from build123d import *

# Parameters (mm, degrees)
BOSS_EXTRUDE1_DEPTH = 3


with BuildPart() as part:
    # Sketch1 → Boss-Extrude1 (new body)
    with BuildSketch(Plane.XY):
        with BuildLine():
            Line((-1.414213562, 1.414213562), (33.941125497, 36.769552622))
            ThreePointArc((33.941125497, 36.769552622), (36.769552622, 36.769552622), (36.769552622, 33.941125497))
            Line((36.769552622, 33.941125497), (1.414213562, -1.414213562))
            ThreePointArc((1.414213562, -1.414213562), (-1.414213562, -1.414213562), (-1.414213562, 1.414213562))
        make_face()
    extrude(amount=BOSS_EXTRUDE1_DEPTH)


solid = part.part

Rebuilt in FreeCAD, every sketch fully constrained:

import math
import FreeCAD as App
import Part
import Sketcher

V = App.Vector
Q = App.Units.Quantity

doc = App.newDocument("Part")
params = doc.addObject("Spreadsheet::Sheet", "Params")
for row, (alias, value) in enumerate([
    ("sketch1_radius", "2 mm"),
    ("sketch1_length", "50 mm"),
    ("pad1_length", "3 mm"),
], start=1):
    params.set(f"A{row}", alias)
    params.set(f"B{row}", "=" + value)
    params.setAlias(f"B{row}", alias)

body = doc.addObject("PartDesign::Body", "Body")

sketch1 = doc.addObject("Sketcher::SketchObject", "Sketch")
body.addObject(sketch1)
sketch1.AttachmentSupport = (doc.XY_Plane, [""])
sketch1.MapMode = "FlatFace"
sketch1.addGeometry(Part.LineSegment(V(33.9, 36.8, 0), V(-1.4, 1.4, 0)), False)
sketch1.addGeometry(Part.ArcOfCircle(Part.Circle(V(0, 0, 0), V(0, 0, 1), 2), math.radians(135), math.radians(315)), False)
sketch1.addGeometry(Part.LineSegment(V(1.4, -1.4, 0), V(36.8, 33.9, 0)), False)
sketch1.addGeometry(Part.ArcOfCircle(Part.Circle(V(35.4, 35.4, 0), V(0, 0, 1), 2), math.radians(-45), math.radians(135)), False)
sketch1.addConstraint(Sketcher.Constraint("Tangent", 0, 2, 1, 1))
sketch1.addConstraint(Sketcher.Constraint("Tangent", 1, 2, 2, 1))
sketch1.addConstraint(Sketcher.Constraint("Tangent", 2, 2, 3, 1))
sketch1.addConstraint(Sketcher.Constraint("Tangent", 3, 2, 0, 1))
sketch1.addConstraint(Sketcher.Constraint("Coincident", 1, 3, -1, 1))
sketch1.addConstraint(Sketcher.Constraint("Equal", 1, 3))
sketch1.addConstraint(Sketcher.Constraint("Radius", 1, 2.0))
sketch1.addConstraint(Sketcher.Constraint("Angle", 0, Q("-135 deg")))
sketch1.addConstraint(Sketcher.Constraint("Distance", 0, 50.0))
sketch1.setExpression("Constraints[6]", "Params.sketch1_radius")
sketch1.setExpression("Constraints[8]", "Params.sketch1_length")
pad1 = doc.addObject("PartDesign::Pad", "Pad")
body.addObject(pad1)
pad1.Profile = sketch1
pad1.setExpression("Length", "Params.pad1_length")

doc.recompute()
